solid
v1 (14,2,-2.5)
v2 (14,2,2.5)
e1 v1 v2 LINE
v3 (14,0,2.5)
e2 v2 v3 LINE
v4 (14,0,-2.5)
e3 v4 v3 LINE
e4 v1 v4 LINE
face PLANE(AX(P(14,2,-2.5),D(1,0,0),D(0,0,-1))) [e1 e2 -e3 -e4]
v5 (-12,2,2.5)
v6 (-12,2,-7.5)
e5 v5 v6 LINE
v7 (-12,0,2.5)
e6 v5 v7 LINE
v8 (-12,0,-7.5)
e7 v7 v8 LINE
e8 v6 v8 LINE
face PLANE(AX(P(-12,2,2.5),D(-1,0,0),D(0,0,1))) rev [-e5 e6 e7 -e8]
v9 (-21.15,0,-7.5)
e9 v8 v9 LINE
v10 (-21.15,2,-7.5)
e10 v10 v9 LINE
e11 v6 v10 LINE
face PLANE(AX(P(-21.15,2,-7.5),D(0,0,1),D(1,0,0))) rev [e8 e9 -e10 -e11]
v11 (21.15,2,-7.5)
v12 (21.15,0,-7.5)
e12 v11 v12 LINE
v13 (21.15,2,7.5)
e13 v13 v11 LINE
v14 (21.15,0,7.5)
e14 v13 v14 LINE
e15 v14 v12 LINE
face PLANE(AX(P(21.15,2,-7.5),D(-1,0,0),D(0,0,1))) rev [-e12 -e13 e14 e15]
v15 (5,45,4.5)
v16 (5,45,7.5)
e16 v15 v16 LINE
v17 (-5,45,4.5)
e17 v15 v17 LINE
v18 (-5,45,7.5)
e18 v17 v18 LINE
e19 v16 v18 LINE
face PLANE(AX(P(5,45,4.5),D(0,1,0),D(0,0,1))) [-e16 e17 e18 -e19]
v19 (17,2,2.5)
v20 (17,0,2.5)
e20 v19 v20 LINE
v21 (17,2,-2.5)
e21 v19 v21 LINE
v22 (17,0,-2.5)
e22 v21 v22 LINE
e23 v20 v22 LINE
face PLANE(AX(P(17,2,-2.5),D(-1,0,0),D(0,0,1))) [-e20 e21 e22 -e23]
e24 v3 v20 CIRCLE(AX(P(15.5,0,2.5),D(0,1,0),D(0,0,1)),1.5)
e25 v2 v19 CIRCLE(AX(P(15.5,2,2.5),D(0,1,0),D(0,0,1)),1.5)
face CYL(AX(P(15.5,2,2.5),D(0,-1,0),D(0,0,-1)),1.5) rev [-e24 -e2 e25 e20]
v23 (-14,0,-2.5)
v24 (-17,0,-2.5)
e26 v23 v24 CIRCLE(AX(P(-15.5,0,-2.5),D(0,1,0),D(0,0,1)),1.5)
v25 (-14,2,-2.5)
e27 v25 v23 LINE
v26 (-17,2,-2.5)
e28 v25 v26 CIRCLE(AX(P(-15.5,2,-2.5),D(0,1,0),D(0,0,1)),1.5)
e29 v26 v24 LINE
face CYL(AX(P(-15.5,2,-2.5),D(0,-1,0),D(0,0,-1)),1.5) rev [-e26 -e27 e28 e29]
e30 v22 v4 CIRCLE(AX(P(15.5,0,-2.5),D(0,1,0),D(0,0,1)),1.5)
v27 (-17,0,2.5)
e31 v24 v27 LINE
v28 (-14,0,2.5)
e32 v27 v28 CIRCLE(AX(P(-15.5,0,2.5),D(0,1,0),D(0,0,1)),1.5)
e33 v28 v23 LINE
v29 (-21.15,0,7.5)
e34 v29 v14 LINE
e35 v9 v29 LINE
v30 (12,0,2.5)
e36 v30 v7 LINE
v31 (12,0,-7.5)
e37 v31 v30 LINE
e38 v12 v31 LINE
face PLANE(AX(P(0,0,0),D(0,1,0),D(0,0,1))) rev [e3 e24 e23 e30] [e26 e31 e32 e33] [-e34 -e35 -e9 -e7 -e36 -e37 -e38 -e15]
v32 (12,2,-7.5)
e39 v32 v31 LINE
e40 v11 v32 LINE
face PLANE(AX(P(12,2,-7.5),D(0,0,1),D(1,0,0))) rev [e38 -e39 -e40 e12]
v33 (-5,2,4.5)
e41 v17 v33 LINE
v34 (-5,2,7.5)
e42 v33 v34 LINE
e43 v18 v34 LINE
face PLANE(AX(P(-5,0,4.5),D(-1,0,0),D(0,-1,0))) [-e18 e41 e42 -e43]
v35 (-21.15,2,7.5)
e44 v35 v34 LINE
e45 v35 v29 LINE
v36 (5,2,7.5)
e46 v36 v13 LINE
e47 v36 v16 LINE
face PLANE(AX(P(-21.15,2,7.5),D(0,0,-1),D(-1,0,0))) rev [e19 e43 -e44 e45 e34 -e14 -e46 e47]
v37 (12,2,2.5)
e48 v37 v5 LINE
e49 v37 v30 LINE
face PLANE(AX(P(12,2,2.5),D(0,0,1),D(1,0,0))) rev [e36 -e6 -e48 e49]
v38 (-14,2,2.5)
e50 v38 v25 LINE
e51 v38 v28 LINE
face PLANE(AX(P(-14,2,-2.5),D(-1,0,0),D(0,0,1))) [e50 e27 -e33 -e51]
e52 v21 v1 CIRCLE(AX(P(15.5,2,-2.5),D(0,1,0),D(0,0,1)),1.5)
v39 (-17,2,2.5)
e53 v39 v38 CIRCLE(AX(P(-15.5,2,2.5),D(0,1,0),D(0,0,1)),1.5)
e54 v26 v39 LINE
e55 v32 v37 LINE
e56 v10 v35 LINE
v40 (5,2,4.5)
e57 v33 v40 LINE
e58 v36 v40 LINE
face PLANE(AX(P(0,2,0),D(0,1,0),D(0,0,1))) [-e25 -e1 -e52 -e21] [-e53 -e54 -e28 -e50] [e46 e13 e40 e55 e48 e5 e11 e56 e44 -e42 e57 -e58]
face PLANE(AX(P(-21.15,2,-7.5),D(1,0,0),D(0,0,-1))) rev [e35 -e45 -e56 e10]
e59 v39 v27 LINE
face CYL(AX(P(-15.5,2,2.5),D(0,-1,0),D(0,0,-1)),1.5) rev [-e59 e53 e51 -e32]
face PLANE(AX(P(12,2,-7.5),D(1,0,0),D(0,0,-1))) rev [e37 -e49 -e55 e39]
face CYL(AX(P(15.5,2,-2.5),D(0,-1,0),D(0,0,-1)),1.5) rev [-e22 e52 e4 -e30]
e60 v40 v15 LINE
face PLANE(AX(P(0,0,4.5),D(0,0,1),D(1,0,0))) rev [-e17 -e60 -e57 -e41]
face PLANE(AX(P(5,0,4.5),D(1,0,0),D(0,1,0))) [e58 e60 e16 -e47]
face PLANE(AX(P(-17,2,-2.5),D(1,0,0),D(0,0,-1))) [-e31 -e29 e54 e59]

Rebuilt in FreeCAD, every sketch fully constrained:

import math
import FreeCAD as App
import Part
import Sketcher
from FreeCAD import Vector
Q = App.Units.Quantity

doc = App.newDocument("Part")
params = doc.addObject("Spreadsheet::Sheet", "Params")
for row, (alias, value) in enumerate([
    ("sketch1_radius", "1.5 mm"),
    ("sketch1_width", "24 mm"),
    ("sketch1_height", "15 mm"),
    ("sketch1_height2", "10 mm"),
    ("sketch1_width2", "42.3 mm"),
    ("pad1_length", "2 mm"),
    ("sketch2_width", "10 mm"),
    ("sketch2_height", "45 mm"),
    ("pad2_length", "3 mm"),
], start=1):
    params.set(f"A{row}", alias)
    params.set(f"B{row}", "=" + value)
    params.setAlias(f"B{row}", alias)

body = doc.addObject("PartDesign::Body", "Body")

# Sketch on XZ plane
sketch1 = body.newObject("Sketcher::SketchObject", "Sketch")
sketch1.AttachmentSupport = (doc.getObject("XZ_Plane"), [""])
sketch1.MapMode = "FlatFace"
sketch1.addGeometry([
    Part.LineSegment(Vector(-12, -7.5, 0), Vector(-21.1, -7.5, 0)),  # 0
    Part.LineSegment(Vector(-21.1, -7.5, 0), Vector(-21.1, 7.5, 0)),  # 1
    Part.LineSegment(Vector(-21.1, 7.5, 0), Vector(21.1, 7.5, 0)),  # 2
    Part.LineSegment(Vector(21.1, 7.5, 0), Vector(21.1, -7.5, 0)),  # 3
    Part.LineSegment(Vector(21.1, -7.5, 0), Vector(12, -7.5, 0)),  # 4
    Part.LineSegment(Vector(12, -7.5, 0), Vector(12, 2.5, 0)),  # 5
    Part.LineSegment(Vector(12, 2.5, 0), Vector(-12, 2.5, 0)),  # 6
    Part.LineSegment(Vector(-12, 2.5, 0), Vector(-12, -7.5, 0)),  # 7
    Part.LineSegment(Vector(17, -2.5, 0), Vector(17, 2.5, 0)),  # 8
    Part.ArcOfCircle(Part.Circle(Vector(15.5, 2.5, 0), Vector(0, 0, 1), 1.5), math.radians(0), math.radians(180)),  # 9
    Part.LineSegment(Vector(14, 2.5, 0), Vector(14, -2.5, 0)),  # 10
    Part.ArcOfCircle(Part.Circle(Vector(15.5, -2.5, 0), Vector(0, 0, 1), 1.5), math.radians(180), math.radians(360)),  # 11
    Part.LineSegment(Vector(-14, -2.5, 0), Vector(-14, 2.5, 0)),  # 12
    Part.ArcOfCircle(Part.Circle(Vector(-15.5, 2.5, 0), Vector(0, 0, 1), 1.5), math.radians(0), math.radians(180)),  # 13
    Part.LineSegment(Vector(-17, 2.5, 0), Vector(-17, -2.5, 0)),  # 14
    Part.ArcOfCircle(Part.Circle(Vector(-15.5, -2.5, 0), Vector(0, 0, 1), 1.5), math.radians(180), math.radians(360)),  # 15
], False)
sketch1.addConstraint([
    Sketcher.Constraint("Coincident", 0, 2, 1, 1),
    Sketcher.Constraint("Coincident", 1, 2, 2, 1),
    Sketcher.Constraint("Coincident", 2, 2, 3, 1),
    Sketcher.Constraint("Coincident", 3, 2, 4, 1),
    Sketcher.Constraint("Coincident", 4, 2, 5, 1),
    Sketcher.Constraint("Coincident", 5, 2, 6, 1),
    Sketcher.Constraint("Coincident", 6, 2, 7, 1),
    Sketcher.Constraint("Coincident", 7, 2, 0, 1),
    Sketcher.Constraint("Tangent", 8, 2, 9, 1),
    Sketcher.Constraint("Tangent", 9, 2, 10, 1),
    Sketcher.Constraint("Tangent", 10, 2, 11, 1),
    Sketcher.Constraint("Tangent", 11, 2, 8, 1),
    Sketcher.Constraint("Tangent", 12, 2, 13, 1),
    Sketcher.Constraint("Tangent", 13, 2, 14, 1),
    Sketcher.Constraint("Tangent", 14, 2, 15, 1),
    Sketcher.Constraint("Tangent", 15, 2, 12, 1),
    Sketcher.Constraint("Horizontal", 0),
    Sketcher.Constraint("Vertical", 1),
    Sketcher.Constraint("Horizontal", 2),
    Sketcher.Constraint("Vertical", 3),
    Sketcher.Constraint("Horizontal", 4),
    Sketcher.Constraint("Vertical", 5),
    Sketcher.Constraint("Horizontal", 6),
    Sketcher.Constraint("Vertical", 7),
    Sketcher.Constraint("Vertical", 8),
    Sketcher.Constraint("Vertical", 10),
    Sketcher.Constraint("Vertical", 12),
    Sketcher.Constraint("Vertical", 14),
    Sketcher.Constraint("Equal", 11, 13),
    Sketcher.Constraint("Symmetric", 11, 3, 13, 3, -1, 1),
    Sketcher.Constraint("Symmetric", 0, 2, 2, 2, -1, 1),
    Sketcher.Constraint("Symmetric", 4, 2, 7, 2, -2),
    Sketcher.Constraint("Horizontal", 9, 3, 13, 3),
    Sketcher.Constraint("Horizontal", 11, 3, 15, 3),
    Sketcher.Constraint("Horizontal", 13, 3, 5, 2),
    Sketcher.Constraint("Radius", 9, Q("1.5 mm")),
    Sketcher.Constraint("DistanceX", 6, 2, 6, 1, Q("24 mm")),
    Sketcher.Constraint("DistanceY", 1, 1, 1, 2, Q("15 mm")),
    Sketcher.Constraint("DistanceY", 5, 1, 5, 2, Q("10 mm")),
    Sketcher.Constraint("DistanceX", 2, 1, 2, 2, Q("42.3 mm")),
    Sketcher.Constraint("DistanceX", -1, 1, 8, 2, Q("17 mm")),
])
sketch1.setExpression("Constraints[35]", "Params.sketch1_radius")
sketch1.setExpression("Constraints[36]", "Params.sketch1_width")
sketch1.setExpression("Constraints[37]", "Params.sketch1_height")
sketch1.setExpression("Constraints[38]", "Params.sketch1_height2")
sketch1.setExpression("Constraints[39]", "Params.sketch1_width2")
pad1 = body.newObject("PartDesign::Pad", "Pad")
pad1.Profile = sketch1
pad1.setExpression("Length", "Params.pad1_length")
pad1.Reversed = True

# Sketch on XY plane
sketch2 = body.newObject("Sketcher::SketchObject", "Sketch001")
sketch2.AttachmentSupport = (doc.getObject("XY_Plane"), [""])
sketch2.MapMode = "FlatFace"
sketch2.AttachmentOffset = App.Placement(Vector(0, 0, 7.5), App.Rotation())
sketch2.addGeometry([
    Part.LineSegment(Vector(-5, 45, 0), Vector(-5, 0, 0)),
    Part.LineSegment(Vector(-5, 0, 0), Vector(5, 0, 0)),
    Part.LineSegment(Vector(5, 0, 0), Vector(5, 45, 0)),
    Part.LineSegment(Vector(5, 45, 0), Vector(-5, 45, 0)),
], False)
sketch2.addConstraint([
    Sketcher.Constraint("Coincident", 0, 2, 1, 1),
    Sketcher.Constraint("Coincident", 1, 2, 2, 1),
    Sketcher.Constraint("Coincident", 2, 2, 3, 1),
    Sketcher.Constraint("Coincident", 3, 2, 0, 1),
    Sketcher.Constraint("Vertical", 0),
    Sketcher.Constraint("Horizontal", 1),
    Sketcher.Constraint("Vertical", 2),
    Sketcher.Constraint("Horizontal", 3),
    Sketcher.Constraint("Symmetric", 0, 2, 1, 2, -1, 1),
    Sketcher.Constraint("DistanceX", 1, 1, 1, 2, Q("10 mm")),
    Sketcher.Constraint("DistanceY", 0, 2, 0, 1, Q("45 mm")),
])
sketch2.setExpression("Constraints[9]", "Params.sketch2_width")
sketch2.setExpression("Constraints[10]", "Params.sketch2_height")
pad2 = body.newObject("PartDesign::Pad", "Pad001")
pad2.Profile = sketch2
pad2.setExpression("Length", "Params.pad2_length")
pad2.Reversed = True

doc.recompute()
